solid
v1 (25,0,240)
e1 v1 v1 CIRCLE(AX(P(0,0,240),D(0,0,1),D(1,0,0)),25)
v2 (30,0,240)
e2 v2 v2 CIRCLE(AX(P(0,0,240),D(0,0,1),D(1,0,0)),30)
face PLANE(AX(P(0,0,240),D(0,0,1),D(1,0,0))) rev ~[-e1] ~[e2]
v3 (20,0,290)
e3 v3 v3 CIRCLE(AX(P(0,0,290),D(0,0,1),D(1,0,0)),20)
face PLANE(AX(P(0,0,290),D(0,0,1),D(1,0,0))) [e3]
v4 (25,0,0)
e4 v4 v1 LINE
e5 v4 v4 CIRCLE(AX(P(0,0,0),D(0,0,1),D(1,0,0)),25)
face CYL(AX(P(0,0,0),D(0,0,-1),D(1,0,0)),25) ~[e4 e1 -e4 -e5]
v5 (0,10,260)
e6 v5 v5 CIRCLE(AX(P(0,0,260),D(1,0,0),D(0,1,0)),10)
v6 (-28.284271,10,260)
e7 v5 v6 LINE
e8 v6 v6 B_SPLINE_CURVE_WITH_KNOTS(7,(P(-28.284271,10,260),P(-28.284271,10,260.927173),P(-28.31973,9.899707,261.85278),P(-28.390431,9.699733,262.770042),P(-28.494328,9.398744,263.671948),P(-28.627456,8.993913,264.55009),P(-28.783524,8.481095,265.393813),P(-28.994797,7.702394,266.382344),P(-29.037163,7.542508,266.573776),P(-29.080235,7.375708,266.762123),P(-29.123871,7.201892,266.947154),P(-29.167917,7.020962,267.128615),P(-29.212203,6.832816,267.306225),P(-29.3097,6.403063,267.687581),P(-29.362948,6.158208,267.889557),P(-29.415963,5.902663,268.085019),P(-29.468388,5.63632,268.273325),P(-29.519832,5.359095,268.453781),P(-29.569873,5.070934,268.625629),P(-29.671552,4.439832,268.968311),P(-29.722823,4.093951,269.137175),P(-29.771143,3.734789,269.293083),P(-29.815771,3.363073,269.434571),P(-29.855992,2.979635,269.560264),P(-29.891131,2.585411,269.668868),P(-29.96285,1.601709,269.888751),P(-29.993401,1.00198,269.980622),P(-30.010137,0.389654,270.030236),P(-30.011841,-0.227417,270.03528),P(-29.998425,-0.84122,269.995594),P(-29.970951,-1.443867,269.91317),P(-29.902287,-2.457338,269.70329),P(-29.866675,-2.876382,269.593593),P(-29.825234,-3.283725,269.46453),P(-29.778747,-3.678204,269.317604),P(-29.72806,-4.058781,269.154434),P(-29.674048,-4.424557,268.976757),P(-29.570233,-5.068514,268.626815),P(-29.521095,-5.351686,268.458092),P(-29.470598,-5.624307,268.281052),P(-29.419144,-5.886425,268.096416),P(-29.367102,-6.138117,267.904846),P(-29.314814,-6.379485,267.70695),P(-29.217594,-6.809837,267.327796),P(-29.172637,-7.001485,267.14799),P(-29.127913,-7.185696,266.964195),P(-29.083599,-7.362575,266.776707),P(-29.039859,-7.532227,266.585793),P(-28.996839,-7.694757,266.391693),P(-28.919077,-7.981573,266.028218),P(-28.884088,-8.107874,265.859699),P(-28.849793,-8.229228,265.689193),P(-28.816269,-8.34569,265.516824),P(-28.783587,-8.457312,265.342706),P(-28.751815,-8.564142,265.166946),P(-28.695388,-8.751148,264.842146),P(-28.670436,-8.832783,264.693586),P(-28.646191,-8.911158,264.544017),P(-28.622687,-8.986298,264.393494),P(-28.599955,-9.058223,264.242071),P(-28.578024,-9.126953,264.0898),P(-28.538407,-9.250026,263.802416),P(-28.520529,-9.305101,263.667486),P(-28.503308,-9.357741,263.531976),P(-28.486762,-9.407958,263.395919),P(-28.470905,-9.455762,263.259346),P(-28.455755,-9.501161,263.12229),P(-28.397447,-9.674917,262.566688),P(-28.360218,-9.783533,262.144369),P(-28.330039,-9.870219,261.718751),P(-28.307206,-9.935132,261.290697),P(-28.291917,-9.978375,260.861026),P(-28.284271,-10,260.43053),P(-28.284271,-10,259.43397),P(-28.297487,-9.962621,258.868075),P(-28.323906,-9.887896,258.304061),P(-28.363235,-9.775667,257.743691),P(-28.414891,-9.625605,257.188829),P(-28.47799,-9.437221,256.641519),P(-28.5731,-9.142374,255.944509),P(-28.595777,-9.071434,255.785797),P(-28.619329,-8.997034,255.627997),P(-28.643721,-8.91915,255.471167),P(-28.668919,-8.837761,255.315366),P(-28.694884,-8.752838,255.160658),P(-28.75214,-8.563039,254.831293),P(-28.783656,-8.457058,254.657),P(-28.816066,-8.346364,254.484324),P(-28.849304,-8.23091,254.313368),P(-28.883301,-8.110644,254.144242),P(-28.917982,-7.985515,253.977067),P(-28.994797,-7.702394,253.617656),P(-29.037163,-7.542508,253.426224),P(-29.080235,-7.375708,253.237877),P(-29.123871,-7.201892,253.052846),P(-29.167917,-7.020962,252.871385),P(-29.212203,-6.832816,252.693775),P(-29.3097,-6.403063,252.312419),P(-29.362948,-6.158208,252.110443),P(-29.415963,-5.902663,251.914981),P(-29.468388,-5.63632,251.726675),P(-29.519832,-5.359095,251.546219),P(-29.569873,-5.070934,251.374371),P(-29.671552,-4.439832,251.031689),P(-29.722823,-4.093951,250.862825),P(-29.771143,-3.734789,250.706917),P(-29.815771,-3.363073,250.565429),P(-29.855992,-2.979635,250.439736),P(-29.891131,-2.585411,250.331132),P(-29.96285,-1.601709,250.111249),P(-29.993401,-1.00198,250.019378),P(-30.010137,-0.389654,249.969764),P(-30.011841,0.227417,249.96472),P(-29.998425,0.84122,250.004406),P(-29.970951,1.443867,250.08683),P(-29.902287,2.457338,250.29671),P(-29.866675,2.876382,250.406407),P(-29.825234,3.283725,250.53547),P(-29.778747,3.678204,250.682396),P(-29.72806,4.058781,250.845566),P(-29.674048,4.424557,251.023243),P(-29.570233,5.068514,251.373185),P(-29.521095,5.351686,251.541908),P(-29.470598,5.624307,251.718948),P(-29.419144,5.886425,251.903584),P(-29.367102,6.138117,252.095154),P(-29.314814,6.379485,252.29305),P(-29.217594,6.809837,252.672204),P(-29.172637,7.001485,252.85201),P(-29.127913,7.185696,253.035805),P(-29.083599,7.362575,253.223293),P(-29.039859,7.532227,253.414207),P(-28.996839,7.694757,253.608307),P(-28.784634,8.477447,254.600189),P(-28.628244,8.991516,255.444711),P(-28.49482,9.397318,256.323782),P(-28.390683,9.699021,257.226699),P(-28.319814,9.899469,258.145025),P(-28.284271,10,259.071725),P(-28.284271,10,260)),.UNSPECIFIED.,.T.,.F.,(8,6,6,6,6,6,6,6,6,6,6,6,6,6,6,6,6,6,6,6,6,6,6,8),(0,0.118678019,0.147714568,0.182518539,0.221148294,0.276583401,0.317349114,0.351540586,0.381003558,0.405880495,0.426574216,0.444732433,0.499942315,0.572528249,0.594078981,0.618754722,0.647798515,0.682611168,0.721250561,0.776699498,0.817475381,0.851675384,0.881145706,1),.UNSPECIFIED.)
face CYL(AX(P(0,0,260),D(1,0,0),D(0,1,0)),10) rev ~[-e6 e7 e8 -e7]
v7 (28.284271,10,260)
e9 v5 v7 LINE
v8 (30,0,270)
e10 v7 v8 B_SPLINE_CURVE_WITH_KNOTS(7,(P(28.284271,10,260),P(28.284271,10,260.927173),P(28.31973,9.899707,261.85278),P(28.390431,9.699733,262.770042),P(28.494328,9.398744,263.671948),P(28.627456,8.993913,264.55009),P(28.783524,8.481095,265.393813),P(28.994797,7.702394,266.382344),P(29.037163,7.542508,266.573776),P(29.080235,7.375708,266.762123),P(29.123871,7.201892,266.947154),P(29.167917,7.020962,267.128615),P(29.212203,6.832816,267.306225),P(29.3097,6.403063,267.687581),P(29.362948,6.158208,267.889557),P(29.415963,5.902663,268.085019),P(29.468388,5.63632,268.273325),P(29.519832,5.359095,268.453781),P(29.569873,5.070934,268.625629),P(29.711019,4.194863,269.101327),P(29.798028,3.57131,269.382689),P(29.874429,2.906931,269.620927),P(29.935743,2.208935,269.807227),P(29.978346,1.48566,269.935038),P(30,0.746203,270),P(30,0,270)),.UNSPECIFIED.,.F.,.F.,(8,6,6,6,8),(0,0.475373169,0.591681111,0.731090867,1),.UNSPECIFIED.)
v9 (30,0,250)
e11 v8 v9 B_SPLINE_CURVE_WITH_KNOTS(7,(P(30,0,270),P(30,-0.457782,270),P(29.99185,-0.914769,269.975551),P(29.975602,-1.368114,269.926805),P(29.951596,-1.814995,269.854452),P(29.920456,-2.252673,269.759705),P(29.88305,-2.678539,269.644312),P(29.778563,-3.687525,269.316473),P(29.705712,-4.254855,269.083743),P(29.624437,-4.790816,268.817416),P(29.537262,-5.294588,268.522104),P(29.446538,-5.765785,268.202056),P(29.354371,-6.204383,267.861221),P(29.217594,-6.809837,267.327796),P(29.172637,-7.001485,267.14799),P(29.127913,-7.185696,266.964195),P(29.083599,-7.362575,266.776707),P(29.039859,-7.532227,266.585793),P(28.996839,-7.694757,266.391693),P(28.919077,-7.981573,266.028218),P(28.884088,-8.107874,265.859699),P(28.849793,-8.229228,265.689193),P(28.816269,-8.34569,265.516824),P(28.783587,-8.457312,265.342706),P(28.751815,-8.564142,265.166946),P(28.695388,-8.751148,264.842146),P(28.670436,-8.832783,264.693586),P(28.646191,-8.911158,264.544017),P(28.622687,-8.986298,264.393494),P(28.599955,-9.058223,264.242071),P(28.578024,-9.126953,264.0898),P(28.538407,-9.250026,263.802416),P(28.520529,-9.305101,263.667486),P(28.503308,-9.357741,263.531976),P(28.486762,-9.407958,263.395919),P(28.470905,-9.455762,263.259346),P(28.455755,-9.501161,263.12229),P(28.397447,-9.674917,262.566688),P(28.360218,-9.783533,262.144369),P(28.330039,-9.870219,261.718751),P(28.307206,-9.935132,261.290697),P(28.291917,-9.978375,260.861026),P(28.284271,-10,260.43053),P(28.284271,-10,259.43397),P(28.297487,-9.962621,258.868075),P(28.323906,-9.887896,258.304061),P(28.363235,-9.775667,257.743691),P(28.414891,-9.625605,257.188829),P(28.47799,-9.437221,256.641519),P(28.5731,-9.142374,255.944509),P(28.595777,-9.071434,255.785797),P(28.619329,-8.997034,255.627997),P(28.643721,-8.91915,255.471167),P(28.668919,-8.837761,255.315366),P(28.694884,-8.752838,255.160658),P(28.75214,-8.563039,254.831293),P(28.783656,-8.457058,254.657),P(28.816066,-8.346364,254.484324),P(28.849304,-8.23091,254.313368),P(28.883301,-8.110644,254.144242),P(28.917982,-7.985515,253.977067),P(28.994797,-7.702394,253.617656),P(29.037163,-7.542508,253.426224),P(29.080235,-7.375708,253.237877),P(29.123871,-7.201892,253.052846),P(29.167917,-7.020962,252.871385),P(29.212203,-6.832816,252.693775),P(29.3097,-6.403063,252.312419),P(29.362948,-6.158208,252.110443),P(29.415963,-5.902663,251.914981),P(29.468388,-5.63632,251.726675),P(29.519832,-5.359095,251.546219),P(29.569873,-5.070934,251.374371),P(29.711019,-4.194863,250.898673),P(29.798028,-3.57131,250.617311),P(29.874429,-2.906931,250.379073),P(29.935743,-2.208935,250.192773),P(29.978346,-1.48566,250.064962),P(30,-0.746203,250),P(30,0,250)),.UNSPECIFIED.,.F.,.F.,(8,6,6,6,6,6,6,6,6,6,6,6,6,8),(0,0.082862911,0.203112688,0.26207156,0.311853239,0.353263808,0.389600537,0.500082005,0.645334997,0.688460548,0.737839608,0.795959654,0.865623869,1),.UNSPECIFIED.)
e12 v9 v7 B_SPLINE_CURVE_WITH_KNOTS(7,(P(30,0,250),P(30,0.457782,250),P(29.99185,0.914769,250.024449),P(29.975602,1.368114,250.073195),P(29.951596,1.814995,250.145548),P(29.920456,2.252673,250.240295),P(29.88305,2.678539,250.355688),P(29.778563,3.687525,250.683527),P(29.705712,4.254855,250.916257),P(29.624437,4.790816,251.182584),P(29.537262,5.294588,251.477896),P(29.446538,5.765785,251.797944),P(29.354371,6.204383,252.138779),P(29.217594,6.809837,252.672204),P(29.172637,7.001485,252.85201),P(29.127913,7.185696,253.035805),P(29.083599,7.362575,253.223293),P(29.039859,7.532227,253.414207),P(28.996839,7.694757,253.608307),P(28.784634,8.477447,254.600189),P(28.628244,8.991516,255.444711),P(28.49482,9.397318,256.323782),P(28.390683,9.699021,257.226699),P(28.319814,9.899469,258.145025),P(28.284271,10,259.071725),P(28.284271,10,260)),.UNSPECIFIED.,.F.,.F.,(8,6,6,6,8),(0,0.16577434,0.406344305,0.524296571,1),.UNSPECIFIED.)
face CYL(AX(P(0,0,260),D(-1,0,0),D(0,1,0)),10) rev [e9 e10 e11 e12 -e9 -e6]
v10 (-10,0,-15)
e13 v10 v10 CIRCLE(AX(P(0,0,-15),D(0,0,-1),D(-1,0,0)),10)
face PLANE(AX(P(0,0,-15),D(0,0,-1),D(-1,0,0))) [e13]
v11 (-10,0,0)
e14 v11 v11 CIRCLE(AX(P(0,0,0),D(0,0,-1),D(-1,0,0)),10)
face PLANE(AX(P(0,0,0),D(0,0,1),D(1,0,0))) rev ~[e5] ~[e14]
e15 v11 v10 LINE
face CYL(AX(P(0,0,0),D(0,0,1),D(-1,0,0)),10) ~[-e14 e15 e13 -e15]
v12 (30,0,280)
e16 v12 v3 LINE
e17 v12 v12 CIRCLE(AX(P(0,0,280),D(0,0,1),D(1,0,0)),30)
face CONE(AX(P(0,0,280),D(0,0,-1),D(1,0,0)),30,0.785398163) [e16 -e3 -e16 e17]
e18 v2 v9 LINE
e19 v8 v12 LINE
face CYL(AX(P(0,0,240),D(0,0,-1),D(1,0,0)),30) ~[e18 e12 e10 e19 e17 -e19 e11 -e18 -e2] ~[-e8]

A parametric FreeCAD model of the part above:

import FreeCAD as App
import Part
import Sketcher

V = App.Vector
Q = App.Units.Quantity


def edges_at(feature, points):
    """Names of the edges that pass closest to the given points."""
    edges = feature.Shape.Edges
    near = lambda p: min(range(len(edges)), key=lambda i: edges[i].distToShape(Part.Vertex(*p))[0])
    return sorted({f"Edge{near(p) + 1}" for p in points})

doc = App.newDocument("Part")
body = doc.addObject("PartDesign::Body", "Body")

sketch1 = body.newObject("Sketcher::SketchObject", "Sketch")
sketch1.AttachmentSupport = (doc.getObject("XY_Plane"), [""])
sketch1.MapMode = "FlatFace"
sketch1.addGeometry(Part.Circle(V(0, 0, 0), V(0, 0, 1), 25), False)
sketch1.addConstraint([
    Sketcher.Constraint("Coincident", 0, 3, -1, 1),
    Sketcher.Constraint("Diameter", 0, Q("50 mm")),
])
pad1 = body.newObject("PartDesign::Pad", "Pad")
pad1.Profile = sketch1
pad1.Length = 240

sketch2 = body.newObject("Sketcher::SketchObject", "Sketch001")
sketch2.AttachmentSupport = (doc.getObject("XY_Plane"), [""])
sketch2.MapMode = "FlatFace"
sketch2.AttachmentOffset = App.Placement(V(0, 0, 240), App.Rotation())
sketch2.addGeometry(Part.Circle(V(0, 0, 0), V(0, 0, 1), 30), False)
sketch2.addConstraint([
    Sketcher.Constraint("Coincident", 0, 3, -1, 1),
    Sketcher.Constraint("Diameter", 0, Q("60 mm")),
])
pad2 = body.newObject("PartDesign::Pad", "Pad001")
pad2.Profile = sketch2
pad2.Length = 50
doc.recompute()

chamfer = body.newObject("PartDesign::Chamfer", "Chamfer")
chamfer.Base = (pad2, edges_at(pad2, [(-30, 0, 290)]))
chamfer.Size = 10

sketch3 = body.newObject("Sketcher::SketchObject", "Sketch002")
sketch3.AttachmentSupport = (doc.getObject("YZ_Plane"), [""])
sketch3.MapMode = "FlatFace"
sketch3.addGeometry(Part.Circle(V(0, 260, 0), V(0, 0, 1), 10), False)
sketch3.addConstraint([
    Sketcher.Constraint("PointOnObject", 0, 3, -2),
    Sketcher.Constraint("Diameter", 0, Q("20 mm")),
    Sketcher.Constraint("DistanceY", -1, 1, 0, 3, Q("260 mm")),
])
pocket1 = body.newObject("PartDesign::Pocket", "Pocket")
pocket1.Profile = sketch3
pocket1.Type = "ThroughAll"
pocket1.Midplane = True

sketch4 = body.newObject("Sketcher::SketchObject", "Sketch003")
sketch4.AttachmentSupport = (doc.getObject("XY_Plane"), [""])
sketch4.MapMode = "FlatFace"
sketch4.addGeometry(Part.Circle(V(0, 0, 0), V(0, 0, 1), 10), False)
sketch4.addConstraint([
    Sketcher.Constraint("Coincident", 0, 3, -1, 1),
    Sketcher.Constraint("Diameter", 0, Q("20 mm")),
])
pad3 = body.newObject("PartDesign::Pad", "Pad002")
pad3.Profile = sketch4
pad3.Length = 15
pad3.Reversed = True

doc.recompute()
